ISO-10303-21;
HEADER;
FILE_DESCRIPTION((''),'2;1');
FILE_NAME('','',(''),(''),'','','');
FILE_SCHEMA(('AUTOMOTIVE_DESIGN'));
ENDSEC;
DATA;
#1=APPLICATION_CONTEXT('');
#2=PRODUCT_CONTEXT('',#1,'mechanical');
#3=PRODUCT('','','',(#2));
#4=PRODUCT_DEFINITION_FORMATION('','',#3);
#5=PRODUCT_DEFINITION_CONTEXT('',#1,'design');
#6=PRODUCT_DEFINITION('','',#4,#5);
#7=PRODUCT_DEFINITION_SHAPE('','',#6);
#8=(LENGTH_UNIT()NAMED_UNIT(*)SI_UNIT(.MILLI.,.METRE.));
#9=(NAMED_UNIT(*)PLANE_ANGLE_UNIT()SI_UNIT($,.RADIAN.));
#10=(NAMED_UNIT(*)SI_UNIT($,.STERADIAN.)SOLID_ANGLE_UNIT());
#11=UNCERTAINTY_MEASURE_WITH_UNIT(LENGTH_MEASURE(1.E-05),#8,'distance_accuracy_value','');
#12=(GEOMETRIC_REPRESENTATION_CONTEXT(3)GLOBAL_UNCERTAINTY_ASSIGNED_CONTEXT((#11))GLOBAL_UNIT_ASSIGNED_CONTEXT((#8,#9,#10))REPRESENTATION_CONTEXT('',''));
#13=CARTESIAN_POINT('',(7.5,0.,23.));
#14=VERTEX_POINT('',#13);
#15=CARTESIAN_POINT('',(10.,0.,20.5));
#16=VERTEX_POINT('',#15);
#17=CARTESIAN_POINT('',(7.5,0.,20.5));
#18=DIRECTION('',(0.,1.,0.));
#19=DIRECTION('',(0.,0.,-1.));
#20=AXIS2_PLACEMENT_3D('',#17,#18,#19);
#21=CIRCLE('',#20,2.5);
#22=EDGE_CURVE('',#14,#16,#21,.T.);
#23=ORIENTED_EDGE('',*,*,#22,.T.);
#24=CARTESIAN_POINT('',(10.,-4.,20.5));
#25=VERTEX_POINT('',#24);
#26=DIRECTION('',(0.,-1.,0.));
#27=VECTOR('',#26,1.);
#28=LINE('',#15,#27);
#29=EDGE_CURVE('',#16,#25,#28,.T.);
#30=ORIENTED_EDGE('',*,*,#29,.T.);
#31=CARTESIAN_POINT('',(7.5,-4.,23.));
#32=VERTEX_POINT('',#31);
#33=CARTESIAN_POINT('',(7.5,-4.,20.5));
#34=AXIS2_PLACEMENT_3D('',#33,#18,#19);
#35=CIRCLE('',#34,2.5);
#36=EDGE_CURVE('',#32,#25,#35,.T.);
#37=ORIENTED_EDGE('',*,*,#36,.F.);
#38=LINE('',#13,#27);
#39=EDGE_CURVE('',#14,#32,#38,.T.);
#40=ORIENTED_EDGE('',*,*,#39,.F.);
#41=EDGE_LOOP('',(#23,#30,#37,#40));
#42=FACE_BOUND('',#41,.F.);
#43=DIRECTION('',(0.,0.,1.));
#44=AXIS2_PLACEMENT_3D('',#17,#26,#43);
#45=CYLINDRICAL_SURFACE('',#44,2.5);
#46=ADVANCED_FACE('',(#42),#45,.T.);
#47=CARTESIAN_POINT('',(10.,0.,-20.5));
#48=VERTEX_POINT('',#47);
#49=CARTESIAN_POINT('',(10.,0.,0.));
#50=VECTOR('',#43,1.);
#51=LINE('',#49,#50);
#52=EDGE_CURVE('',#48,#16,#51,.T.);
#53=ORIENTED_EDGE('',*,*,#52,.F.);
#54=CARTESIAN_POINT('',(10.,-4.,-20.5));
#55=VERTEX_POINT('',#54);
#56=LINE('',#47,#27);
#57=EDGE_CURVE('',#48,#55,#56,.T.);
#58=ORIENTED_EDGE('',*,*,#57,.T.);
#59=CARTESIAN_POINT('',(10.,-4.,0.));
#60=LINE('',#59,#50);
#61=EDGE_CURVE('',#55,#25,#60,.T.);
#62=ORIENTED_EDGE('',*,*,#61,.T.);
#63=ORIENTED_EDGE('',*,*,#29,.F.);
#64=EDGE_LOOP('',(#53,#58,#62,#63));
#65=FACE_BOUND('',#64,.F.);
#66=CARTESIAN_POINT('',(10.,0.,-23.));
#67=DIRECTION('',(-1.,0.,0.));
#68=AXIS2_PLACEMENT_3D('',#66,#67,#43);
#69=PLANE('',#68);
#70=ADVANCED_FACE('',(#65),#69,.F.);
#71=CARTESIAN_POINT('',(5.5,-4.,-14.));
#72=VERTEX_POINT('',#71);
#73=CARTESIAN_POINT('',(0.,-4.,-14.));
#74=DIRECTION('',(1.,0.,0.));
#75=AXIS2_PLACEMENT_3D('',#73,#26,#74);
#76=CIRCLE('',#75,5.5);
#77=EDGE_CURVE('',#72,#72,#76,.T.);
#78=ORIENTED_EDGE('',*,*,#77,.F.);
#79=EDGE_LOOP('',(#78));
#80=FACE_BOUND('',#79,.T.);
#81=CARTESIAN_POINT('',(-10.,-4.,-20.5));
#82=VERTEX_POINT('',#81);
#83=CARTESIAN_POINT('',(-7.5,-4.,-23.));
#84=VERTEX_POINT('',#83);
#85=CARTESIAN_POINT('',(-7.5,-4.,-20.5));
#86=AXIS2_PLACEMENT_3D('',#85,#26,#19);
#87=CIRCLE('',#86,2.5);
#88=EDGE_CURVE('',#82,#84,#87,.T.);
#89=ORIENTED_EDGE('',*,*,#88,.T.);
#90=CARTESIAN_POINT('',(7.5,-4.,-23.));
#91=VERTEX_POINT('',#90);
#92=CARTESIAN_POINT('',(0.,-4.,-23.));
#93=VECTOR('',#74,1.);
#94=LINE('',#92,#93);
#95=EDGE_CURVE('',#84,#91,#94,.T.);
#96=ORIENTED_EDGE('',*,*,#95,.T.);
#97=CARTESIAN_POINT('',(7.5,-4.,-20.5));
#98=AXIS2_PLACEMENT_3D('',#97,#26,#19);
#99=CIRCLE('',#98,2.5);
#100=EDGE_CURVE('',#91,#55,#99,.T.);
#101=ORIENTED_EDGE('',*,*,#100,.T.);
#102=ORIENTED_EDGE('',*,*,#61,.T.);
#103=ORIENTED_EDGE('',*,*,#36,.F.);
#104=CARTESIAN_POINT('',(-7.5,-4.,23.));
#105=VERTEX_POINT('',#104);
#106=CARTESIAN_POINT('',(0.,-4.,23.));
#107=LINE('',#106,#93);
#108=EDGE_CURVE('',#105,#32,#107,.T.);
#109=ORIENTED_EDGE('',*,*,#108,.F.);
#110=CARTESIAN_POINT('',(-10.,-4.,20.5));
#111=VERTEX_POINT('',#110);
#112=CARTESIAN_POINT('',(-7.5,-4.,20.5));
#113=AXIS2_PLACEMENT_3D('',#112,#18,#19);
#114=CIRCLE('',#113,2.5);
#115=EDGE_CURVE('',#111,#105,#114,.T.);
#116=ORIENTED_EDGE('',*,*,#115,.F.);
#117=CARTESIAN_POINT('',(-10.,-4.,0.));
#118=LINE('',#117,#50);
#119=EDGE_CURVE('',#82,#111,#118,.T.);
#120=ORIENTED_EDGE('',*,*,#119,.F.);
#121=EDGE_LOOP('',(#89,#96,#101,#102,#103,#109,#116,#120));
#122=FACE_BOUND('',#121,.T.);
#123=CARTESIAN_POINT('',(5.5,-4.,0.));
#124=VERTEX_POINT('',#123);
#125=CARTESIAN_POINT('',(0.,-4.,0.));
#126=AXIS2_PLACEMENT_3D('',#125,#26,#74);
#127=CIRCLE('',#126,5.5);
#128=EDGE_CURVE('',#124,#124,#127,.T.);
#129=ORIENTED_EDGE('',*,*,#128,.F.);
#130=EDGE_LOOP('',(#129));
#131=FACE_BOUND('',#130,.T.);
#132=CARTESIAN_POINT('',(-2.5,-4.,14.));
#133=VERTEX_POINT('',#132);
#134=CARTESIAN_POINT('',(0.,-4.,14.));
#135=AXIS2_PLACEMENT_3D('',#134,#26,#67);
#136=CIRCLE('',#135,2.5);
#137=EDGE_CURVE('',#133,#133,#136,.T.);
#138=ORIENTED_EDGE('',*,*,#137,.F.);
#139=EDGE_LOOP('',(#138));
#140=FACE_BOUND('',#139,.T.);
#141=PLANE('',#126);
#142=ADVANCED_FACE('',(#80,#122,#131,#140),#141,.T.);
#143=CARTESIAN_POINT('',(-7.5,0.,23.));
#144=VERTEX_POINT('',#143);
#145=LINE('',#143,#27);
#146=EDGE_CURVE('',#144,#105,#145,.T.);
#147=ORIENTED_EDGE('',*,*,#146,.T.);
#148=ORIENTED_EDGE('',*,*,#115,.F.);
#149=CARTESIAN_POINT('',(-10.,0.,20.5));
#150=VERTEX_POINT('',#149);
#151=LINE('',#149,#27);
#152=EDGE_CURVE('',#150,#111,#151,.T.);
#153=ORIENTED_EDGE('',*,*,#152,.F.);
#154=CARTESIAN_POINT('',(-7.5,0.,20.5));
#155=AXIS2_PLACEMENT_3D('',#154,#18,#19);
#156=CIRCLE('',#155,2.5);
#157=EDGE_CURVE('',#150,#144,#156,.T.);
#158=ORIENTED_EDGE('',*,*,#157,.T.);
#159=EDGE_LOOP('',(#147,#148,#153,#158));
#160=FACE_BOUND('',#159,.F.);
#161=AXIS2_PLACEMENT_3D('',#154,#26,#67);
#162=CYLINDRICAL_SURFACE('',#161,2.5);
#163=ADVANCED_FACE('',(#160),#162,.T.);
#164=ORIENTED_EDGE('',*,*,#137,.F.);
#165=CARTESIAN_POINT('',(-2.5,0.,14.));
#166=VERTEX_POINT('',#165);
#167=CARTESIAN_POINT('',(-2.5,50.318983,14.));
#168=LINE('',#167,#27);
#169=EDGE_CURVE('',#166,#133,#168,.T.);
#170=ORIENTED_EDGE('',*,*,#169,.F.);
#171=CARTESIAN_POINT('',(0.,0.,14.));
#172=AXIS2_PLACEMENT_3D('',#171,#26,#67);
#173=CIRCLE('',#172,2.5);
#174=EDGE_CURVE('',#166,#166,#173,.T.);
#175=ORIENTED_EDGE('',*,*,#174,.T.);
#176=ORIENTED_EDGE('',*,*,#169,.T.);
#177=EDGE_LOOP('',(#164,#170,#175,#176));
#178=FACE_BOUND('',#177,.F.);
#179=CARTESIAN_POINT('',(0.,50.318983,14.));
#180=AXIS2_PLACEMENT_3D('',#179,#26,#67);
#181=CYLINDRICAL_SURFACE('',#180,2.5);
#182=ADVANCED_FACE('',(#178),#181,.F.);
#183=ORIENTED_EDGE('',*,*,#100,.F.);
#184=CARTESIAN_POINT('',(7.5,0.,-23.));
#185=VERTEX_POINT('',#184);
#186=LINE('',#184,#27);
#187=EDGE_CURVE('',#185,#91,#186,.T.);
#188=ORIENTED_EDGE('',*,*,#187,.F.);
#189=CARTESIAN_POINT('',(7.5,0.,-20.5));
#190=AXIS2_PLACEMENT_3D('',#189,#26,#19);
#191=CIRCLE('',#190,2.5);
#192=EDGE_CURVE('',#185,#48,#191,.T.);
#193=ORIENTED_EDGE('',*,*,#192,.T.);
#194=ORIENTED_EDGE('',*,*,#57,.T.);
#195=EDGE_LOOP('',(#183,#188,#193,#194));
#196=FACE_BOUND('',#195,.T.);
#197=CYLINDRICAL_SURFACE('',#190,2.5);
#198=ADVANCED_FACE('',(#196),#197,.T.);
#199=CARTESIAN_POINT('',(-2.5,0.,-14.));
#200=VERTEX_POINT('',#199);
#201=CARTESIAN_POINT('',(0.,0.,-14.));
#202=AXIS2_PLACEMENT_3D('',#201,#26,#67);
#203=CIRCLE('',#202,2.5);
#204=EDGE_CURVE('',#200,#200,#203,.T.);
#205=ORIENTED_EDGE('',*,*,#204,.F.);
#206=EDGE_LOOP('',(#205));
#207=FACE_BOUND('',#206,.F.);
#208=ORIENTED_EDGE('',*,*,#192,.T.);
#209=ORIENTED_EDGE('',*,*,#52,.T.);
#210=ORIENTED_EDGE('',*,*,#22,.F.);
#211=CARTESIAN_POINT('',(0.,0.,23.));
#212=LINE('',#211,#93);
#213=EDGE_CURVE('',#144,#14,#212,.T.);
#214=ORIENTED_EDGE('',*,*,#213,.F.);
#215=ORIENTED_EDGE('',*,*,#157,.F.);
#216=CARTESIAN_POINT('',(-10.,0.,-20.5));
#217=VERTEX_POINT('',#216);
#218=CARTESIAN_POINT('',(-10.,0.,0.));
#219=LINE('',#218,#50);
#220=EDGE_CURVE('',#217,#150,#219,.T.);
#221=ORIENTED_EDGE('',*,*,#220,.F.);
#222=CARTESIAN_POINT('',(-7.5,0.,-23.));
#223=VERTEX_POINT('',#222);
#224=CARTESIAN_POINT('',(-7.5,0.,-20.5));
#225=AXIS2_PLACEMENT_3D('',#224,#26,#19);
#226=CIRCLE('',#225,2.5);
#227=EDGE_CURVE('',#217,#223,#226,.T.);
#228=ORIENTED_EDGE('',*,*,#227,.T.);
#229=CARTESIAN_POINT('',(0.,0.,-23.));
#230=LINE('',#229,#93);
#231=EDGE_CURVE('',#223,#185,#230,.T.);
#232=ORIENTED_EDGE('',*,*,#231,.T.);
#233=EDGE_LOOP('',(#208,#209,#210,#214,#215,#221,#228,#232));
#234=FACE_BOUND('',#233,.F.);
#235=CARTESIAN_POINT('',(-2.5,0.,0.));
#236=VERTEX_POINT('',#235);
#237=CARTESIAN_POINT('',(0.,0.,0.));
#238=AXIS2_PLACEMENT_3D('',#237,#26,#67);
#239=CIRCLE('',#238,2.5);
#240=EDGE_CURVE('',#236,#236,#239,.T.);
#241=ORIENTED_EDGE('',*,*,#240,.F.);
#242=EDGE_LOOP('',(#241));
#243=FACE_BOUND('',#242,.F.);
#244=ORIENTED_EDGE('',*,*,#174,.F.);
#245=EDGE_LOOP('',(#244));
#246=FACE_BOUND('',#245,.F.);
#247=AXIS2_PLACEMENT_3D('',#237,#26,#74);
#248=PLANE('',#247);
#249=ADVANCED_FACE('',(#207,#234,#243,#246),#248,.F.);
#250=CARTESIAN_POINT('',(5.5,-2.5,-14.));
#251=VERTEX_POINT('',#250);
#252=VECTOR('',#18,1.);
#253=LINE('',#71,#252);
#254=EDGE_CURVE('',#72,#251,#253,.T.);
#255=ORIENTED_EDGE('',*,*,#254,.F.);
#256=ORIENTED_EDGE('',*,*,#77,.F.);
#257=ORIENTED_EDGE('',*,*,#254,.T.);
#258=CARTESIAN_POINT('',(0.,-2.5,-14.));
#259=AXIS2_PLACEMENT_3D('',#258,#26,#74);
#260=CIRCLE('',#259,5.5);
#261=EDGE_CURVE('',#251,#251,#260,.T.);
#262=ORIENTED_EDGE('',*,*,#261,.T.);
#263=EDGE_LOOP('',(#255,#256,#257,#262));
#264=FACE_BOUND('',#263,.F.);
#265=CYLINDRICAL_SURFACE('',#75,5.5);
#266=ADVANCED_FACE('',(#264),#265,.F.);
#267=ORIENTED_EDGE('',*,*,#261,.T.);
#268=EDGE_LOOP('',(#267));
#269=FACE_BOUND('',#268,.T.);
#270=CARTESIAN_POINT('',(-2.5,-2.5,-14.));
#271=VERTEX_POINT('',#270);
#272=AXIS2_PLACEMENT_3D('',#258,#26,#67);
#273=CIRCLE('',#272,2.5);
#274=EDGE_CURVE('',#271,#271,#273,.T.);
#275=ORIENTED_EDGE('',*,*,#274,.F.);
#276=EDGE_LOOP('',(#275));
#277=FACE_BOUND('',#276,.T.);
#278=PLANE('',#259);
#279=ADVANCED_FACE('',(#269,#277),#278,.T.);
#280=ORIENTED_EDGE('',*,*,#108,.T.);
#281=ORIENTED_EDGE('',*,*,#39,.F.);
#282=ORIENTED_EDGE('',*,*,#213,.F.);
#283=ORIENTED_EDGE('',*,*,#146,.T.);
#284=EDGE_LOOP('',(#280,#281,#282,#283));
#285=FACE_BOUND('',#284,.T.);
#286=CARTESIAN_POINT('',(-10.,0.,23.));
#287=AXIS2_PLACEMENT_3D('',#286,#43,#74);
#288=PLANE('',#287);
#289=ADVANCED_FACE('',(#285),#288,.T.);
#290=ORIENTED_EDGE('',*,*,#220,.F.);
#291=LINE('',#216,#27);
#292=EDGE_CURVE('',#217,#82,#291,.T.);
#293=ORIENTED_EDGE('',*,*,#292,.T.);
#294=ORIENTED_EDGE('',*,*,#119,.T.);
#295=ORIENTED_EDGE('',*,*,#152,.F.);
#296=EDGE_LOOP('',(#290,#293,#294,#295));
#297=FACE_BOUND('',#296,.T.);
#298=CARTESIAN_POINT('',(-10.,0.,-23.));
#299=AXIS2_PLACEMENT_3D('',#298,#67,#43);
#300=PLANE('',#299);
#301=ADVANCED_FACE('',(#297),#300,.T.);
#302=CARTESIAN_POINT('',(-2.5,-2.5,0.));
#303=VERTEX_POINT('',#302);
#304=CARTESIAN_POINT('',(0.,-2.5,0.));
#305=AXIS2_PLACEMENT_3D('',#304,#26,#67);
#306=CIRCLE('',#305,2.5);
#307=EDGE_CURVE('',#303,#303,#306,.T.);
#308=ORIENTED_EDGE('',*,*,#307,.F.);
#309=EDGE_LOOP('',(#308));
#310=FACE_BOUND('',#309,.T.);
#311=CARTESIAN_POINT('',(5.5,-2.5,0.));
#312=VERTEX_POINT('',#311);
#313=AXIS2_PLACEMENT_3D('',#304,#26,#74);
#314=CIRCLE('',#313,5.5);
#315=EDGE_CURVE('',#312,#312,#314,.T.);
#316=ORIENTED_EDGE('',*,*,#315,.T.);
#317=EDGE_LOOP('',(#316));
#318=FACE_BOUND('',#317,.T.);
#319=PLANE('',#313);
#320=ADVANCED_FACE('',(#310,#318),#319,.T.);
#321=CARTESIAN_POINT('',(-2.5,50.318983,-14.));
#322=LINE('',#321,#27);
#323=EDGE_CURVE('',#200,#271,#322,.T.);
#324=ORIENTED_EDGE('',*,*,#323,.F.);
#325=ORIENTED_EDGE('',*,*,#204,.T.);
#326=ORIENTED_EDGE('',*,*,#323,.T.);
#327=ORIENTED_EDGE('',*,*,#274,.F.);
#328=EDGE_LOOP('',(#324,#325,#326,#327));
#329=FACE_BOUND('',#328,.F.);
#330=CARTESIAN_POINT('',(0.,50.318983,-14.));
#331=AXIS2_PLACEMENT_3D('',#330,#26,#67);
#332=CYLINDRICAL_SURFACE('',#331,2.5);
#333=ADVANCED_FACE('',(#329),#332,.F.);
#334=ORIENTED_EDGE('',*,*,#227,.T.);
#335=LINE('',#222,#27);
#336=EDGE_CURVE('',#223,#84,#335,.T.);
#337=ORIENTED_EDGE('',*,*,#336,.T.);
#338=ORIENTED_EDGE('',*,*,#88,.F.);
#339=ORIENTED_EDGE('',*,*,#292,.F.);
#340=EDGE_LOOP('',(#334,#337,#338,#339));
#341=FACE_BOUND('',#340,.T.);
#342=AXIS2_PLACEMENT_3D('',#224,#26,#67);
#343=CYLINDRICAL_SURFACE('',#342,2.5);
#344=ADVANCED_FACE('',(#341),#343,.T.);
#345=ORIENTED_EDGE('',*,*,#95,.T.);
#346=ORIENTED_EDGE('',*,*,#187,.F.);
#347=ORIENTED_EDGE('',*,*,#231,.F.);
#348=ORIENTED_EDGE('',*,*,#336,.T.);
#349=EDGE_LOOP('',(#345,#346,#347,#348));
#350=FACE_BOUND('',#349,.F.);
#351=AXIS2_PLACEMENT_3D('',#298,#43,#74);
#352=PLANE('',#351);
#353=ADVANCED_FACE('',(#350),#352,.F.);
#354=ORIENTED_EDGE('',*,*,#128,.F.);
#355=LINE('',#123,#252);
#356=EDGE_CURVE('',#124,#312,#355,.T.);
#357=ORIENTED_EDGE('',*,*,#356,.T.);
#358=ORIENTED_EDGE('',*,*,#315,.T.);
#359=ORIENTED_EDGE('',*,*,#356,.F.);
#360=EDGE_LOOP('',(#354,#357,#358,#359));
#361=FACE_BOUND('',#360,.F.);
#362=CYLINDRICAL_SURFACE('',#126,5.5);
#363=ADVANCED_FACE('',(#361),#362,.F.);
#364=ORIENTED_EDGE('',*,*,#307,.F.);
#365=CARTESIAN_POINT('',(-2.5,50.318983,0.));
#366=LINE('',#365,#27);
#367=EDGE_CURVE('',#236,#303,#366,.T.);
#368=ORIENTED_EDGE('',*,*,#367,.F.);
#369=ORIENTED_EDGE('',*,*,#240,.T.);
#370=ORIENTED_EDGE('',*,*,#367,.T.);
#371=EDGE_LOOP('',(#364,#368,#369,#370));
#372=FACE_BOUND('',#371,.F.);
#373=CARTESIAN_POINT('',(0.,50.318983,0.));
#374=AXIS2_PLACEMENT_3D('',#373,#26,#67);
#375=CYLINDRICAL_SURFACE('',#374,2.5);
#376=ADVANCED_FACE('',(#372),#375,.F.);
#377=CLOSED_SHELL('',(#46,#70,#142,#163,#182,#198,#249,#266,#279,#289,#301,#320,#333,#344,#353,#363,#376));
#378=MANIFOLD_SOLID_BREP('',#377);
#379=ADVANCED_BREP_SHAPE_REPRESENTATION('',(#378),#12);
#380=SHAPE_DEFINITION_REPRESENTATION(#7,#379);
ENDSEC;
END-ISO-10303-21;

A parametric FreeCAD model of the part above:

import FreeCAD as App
import Part
import Sketcher
from FreeCAD import Vector
Q = App.Units.Quantity


def edges_at(feature, points):
    """Names of the edges that pass closest to the given points."""
    edges = feature.Shape.Edges
    near = lambda p: min(range(len(edges)), key=lambda i: edges[i].distToShape(Part.Vertex(*p))[0])
    return sorted({f"Edge{near(p) + 1}" for p in points})


def add_polygon(sketch, points):
    """Adds a closed chain of lines whose ends are joined by coincident constraints."""
    first, n = sketch.GeometryCount, len(points)
    for a, b in zip(points, points[1:] + points[:1]):
        sketch.addGeometry(Part.LineSegment(App.Vector(*a, 0), App.Vector(*b, 0)), False)
    for i in range(n):
        sketch.addConstraint(Sketcher.Constraint("Coincident", first + i, 2, first + (i + 1) % n, 1))

doc = App.newDocument("Part")
params = doc.addObject("Spreadsheet::Sheet", "Params")
for row, (alias, value) in enumerate([
    ("sketch1_width", "20 mm"),
    ("sketch1_height", "46 mm"),
    ("pad1_length", "4 mm"),
    ("sketch2_diameter", "5 mm"),
    ("hole_diameter", "5 mm"),
    ("sketch3_diameter", "11 mm"),
    ("pocket1_length", "1.5 mm"),
    ("fillet_radius", "2.5 mm"),
], start=1):
    params.set(f"A{row}", alias)
    params.set(f"B{row}", "=" + value)
    params.setAlias(f"B{row}", alias)

body = doc.addObject("PartDesign::Body", "Body")

# Sketch on XZ plane
sketch1 = body.newObject("Sketcher::SketchObject", "Sketch")
sketch1.AttachmentSupport = (doc.getObject("XZ_Plane"), [""])
sketch1.MapMode = "FlatFace"
add_polygon(sketch1, [(-10, 23), (-10, -23), (10, -23), (10, 23)])  # lines 0-3
sketch1.addConstraint(Sketcher.Constraint("Vertical", 0))
sketch1.addConstraint(Sketcher.Constraint("Horizontal", 1))
sketch1.addConstraint(Sketcher.Constraint("Vertical", 2))
sketch1.addConstraint(Sketcher.Constraint("Horizontal", 3))
sketch1.addConstraint(Sketcher.Constraint("Symmetric", 0, 2, 2, 2, -1, 1))
sketch1.addConstraint(Sketcher.Constraint("DistanceX", 1, 1, 1, 2, Q("20 mm")))
sketch1.addConstraint(Sketcher.Constraint("DistanceY", 0, 2, 0, 1, Q("46 mm")))
sketch1.setExpression("Constraints[9]", "Params.sketch1_width")
sketch1.setExpression("Constraints[10]", "Params.sketch1_height")
pad1 = body.newObject("PartDesign::Pad", "Pad")
pad1.Profile = sketch1
pad1.setExpression("Length", "Params.pad1_length")

# Sketch on XZ plane
sketch2 = body.newObject("Sketcher::SketchObject", "Sketch001")
sketch2.AttachmentSupport = (doc.getObject("XZ_Plane"), [""])
sketch2.MapMode = "FlatFace"
sketch2.addGeometry(Part.Circle(Vector(0, -14, 0), Vector(0, 0, 1), 2.5), False)
sketch2.addGeometry(Part.Circle(Vector(0, 0, 0), Vector(0, 0, 1), 2.5), False)
sketch2.addGeometry(Part.Circle(Vector(0, 14, 0), Vector(0, 0, 1), 2.5), False)
sketch2.addConstraint(Sketcher.Constraint("Coincident", 1, 3, -1, 1))
sketch2.addConstraint(Sketcher.Constraint("Equal", 0, 1))
sketch2.addConstraint(Sketcher.Constraint("Equal", 1, 2))
sketch2.addConstraint(Sketcher.Constraint("Symmetric", 0, 3, 2, 3, -1, 1))
sketch2.addConstraint(Sketcher.Constraint("PointOnObject", 0, 3, -2))
sketch2.addConstraint(Sketcher.Constraint("Diameter", 0, Q("5 mm")))
sketch2.addConstraint(Sketcher.Constraint("DistanceY", 0, 3, -1, 1, Q("14 mm")))
sketch2.setExpression("Constraints[5]", "Params.sketch2_diameter")
doc.recompute()
hole = body.newObject("PartDesign::Hole", "Hole")
hole.Profile = sketch2
hole.ThreadType = "None"
hole.setExpression("Diameter", "Params.hole_diameter")
hole.DepthType = "ThroughAll"
hole.Reversed = True

# Sketch on XZ plane
sketch3 = body.newObject("Sketcher::SketchObject", "Sketch002")
sketch3.AttachmentSupport = (doc.getObject("XZ_Plane"), [""])
sketch3.MapMode = "FlatFace"
sketch3.AttachmentOffset = App.Placement(Vector(0, 0, 4), App.Rotation())
sketch3.addGeometry(Part.Circle(Vector(0, 0, 0), Vector(0, 0, 1), 6), False)
sketch3.addGeometry(Part.Circle(Vector(0, -14, 0), Vector(0, 0, 1), 6), False)
sketch3.addConstraint(Sketcher.Constraint("Coincident", 0, 3, -1, 1))
sketch3.addConstraint(Sketcher.Constraint("Equal", 0, 1))
sketch3.addConstraint(Sketcher.Constraint("PointOnObject", 1, 3, -2))
sketch3.addConstraint(Sketcher.Constraint("Diameter", 0, Q("11 mm")))
sketch3.addConstraint(Sketcher.Constraint("DistanceY", 1, 3, -1, 1, Q("14 mm")))
sketch3.setExpression("Constraints[3]", "Params.sketch3_diameter")
pocket1 = body.newObject("PartDesign::Pocket", "Pocket")
pocket1.Profile = sketch3
pocket1.setExpression("Length", "Params.pocket1_length")
doc.recompute()

fillet = body.newObject("PartDesign::Fillet", "Fillet")
fillet.Base = (pocket1, edges_at(pocket1, [
    (10, -2, 23),
    (-10, -2, 23),
    (10, -2, -23),
    (-10, -2, -23),
]))
fillet.setExpression("Radius", "Params.fillet_radius")

doc.recompute()
